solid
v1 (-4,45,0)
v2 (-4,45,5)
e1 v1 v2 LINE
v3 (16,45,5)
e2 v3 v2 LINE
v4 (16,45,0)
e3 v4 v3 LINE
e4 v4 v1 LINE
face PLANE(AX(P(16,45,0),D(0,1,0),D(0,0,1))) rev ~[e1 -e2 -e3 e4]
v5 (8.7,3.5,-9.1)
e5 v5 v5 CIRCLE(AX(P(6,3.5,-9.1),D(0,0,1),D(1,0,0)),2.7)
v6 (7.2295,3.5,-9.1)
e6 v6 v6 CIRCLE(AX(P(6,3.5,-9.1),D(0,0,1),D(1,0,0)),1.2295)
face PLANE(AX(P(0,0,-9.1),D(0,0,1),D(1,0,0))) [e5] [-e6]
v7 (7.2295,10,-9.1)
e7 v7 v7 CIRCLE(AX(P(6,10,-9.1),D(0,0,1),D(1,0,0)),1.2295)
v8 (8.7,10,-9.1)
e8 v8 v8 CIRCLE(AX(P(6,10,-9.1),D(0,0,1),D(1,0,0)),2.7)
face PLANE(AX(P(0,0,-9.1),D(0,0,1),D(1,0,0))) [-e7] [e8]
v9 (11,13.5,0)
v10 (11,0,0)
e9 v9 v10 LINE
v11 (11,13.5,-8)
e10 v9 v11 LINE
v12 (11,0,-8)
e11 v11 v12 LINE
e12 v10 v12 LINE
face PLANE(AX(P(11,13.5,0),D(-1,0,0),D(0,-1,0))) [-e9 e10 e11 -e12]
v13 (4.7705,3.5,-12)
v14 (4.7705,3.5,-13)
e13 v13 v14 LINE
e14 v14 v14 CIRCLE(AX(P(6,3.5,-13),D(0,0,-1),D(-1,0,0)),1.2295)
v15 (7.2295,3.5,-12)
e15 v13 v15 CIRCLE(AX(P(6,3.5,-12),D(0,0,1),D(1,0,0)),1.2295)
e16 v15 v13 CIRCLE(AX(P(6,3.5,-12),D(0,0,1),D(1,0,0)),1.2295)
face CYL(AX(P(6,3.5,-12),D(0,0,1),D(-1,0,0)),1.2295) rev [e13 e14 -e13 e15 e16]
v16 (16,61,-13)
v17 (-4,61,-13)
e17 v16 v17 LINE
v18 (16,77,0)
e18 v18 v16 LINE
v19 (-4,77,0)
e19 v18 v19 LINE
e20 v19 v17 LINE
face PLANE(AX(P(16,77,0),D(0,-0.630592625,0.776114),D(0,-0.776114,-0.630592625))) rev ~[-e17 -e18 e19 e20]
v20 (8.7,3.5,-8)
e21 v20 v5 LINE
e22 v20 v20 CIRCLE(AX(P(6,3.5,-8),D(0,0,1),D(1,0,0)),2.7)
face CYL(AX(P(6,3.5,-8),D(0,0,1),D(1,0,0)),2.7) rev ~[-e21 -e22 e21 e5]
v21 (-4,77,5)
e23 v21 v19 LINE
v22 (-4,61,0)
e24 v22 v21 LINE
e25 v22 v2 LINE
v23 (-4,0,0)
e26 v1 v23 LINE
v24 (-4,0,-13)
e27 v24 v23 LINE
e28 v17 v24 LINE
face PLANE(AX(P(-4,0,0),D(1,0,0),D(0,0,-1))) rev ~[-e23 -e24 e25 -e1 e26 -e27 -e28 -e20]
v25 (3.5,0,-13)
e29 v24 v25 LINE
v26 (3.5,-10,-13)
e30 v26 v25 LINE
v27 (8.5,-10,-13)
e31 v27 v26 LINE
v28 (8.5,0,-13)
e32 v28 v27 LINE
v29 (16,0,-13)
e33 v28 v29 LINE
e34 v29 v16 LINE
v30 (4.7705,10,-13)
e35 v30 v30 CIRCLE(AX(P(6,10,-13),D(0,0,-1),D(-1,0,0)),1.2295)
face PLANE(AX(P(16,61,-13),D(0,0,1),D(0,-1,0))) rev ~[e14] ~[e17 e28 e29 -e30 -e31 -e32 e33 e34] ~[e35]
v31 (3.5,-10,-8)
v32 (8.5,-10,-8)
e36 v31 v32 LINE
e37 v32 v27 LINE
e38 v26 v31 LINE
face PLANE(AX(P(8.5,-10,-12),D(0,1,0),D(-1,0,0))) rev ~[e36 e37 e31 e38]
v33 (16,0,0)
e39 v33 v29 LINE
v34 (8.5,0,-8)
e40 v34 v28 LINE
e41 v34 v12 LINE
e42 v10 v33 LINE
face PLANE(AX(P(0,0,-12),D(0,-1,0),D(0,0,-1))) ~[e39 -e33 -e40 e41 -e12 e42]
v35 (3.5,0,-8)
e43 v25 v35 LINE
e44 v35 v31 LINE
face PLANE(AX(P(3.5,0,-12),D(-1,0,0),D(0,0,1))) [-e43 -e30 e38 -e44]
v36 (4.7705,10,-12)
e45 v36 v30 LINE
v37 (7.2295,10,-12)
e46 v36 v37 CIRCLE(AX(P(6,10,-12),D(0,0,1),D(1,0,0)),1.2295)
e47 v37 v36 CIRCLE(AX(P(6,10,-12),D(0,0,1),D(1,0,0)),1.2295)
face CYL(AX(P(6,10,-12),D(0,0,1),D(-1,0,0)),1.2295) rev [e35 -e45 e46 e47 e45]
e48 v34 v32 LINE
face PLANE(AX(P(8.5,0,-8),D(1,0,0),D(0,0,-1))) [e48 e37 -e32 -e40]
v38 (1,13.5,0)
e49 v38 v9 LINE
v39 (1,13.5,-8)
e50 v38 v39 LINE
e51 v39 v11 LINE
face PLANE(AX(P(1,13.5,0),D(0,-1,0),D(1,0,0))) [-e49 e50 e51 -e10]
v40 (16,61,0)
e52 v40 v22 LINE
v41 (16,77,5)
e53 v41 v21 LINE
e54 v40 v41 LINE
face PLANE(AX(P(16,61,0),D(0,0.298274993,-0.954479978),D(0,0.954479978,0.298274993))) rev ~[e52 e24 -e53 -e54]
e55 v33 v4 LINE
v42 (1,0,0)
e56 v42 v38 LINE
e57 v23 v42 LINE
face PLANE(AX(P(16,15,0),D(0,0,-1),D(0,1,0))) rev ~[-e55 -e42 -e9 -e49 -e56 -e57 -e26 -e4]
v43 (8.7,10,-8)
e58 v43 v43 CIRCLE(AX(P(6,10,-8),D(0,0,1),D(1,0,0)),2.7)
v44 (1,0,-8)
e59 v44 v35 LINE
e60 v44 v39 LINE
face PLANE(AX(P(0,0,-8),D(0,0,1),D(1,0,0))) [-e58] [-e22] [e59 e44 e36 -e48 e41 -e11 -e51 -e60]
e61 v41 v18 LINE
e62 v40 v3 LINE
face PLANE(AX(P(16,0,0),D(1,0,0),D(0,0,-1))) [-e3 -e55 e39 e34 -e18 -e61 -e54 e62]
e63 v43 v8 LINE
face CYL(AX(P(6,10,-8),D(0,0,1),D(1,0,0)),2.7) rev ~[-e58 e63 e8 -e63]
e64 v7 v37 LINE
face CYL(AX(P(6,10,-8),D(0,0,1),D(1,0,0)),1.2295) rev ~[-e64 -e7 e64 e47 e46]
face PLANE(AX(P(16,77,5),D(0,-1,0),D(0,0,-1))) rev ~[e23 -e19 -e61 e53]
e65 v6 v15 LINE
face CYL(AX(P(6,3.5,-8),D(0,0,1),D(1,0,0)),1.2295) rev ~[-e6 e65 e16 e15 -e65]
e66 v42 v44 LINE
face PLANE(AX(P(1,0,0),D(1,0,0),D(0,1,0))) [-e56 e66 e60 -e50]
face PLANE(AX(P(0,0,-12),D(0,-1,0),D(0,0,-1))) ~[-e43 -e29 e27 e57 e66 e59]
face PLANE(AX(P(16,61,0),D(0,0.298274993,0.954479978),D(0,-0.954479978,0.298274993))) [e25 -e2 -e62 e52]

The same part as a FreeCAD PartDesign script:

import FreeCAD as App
import Part
import Sketcher


def add_polygon(sketch, points):
    """Adds a closed chain of lines whose ends are joined by coincident constraints."""
    first, n = sketch.GeometryCount, len(points)
    for a, b in zip(points, points[1:] + points[:1]):
        sketch.addGeometry(Part.LineSegment(App.Vector(*a, 0), App.Vector(*b, 0)), False)
    for i in range(n):
        sketch.addConstraint(Sketcher.Constraint("Coincident", first + i, 2, first + (i + 1) % n, 1))

doc = App.newDocument("Part")
body = doc.addObject("PartDesign::Body", "Body")

# Sketch on YZ plane
sketch1 = body.newObject("Sketcher::SketchObject", "Sketch")
sketch1.AttachmentSupport = (doc.getObject("YZ_Plane"), [""])
sketch1.MapMode = "FlatFace"
add_polygon(sketch1, [(15, 0), (0, 0), (0, -10), (15, -10)])  # lines 0-3
sketch1.addConstraint([
    Sketcher.Constraint("Horizontal", 0),
    Sketcher.Constraint("Vertical", 1),
    Sketcher.Constraint("Horizontal", 2),
    Sketcher.Constraint("Vertical", 3),
    Sketcher.Constraint("Coincident", 0, 2, -1, 1),
    Sketcher.Constraint("DistanceX", 0, 2, 0, 1, 15.0),
    Sketcher.Constraint("DistanceY", 1, 2, 1, 1, 10.0),
])
pad1 = body.newObject("PartDesign::Pad", "Pad")
pad1.Profile = sketch1
pad1.Length = 12

# Sketch on XY plane
sketch2 = body.newObject("Sketcher::SketchObject", "Sketch001")
sketch2.AttachmentSupport = (doc.getObject("XY_Plane"), [""])
sketch2.MapMode = "FlatFace"
add_polygon(sketch2, [(1, 14), (1, 0), (11, 0), (11, 14)])  # lines 0-3
sketch2.addConstraint([
    Sketcher.Constraint("Vertical", 0),
    Sketcher.Constraint("Horizontal", 1),
    Sketcher.Constraint("Vertical", 2),
    Sketcher.Constraint("Horizontal", 3),
    Sketcher.Constraint("PointOnObject", 0, 2, -1),
    Sketcher.Constraint("DistanceX", 1, 1, 1, 2, 10.0),
    Sketcher.Constraint("DistanceY", 0, 2, 0, 1, 13.5),
    Sketcher.Constraint("DistanceX", -1, 1, 0, 2, 1.0),
])
pocket1 = body.newObject("PartDesign::Pocket", "Pocket")
pocket1.Profile = sketch2
pocket1.Length = 8

# Sketch on XY plane
sketch3 = body.newObject("Sketcher::SketchObject", "Sketch002")
sketch3.AttachmentSupport = (doc.getObject("XY_Plane"), [""])
sketch3.MapMode = "FlatFace"
sketch3.AttachmentOffset = App.Placement(App.Vector(0, 0, -10), App.Rotation())
add_polygon(sketch3, [(0, 0), (0, 15), (12, 15), (12, 0)])  # lines 0-3
sketch3.addConstraint([
    Sketcher.Constraint("Vertical", 0),
    Sketcher.Constraint("Horizontal", 1),
    Sketcher.Constraint("Vertical", 2),
    Sketcher.Constraint("Horizontal", 3),
    Sketcher.Constraint("Coincident", 3, 2, -1, 1),
    Sketcher.Constraint("DistanceX", 1, 1, 1, 2, 12.0),
    Sketcher.Constraint("DistanceY", 0, 1, 0, 2, 15.0),
])
pad2 = body.newObject("PartDesign::Pad", "Pad001")
pad2.Profile = sketch3
pad2.Length = 2
pad2.Reversed = True

# Sketch on XY plane
sketch4 = body.newObject("Sketcher::SketchObject", "Sketch003")
sketch4.AttachmentSupport = (doc.getObject("XY_Plane"), [""])
sketch4.MapMode = "FlatFace"
sketch4.AttachmentOffset = App.Placement(App.Vector(0, 0, -8), App.Rotation())
sketch4.addGeometry([
    Part.Circle(App.Vector(6, 10, 0), App.Vector(0, 0, 1), 1.2),
    Part.Circle(App.Vector(6, 3.5, 0), App.Vector(0, 0, 1), 1.2),
], False)
sketch4.addConstraint([
    Sketcher.Constraint("Equal", 0, 1),
    Sketcher.Constraint("Vertical", 0, 3, 1, 3),
    Sketcher.Constraint("Diameter", 0, 2.459),
    Sketcher.Constraint("DistanceY", -1, 1, 1, 3, 3.5),
    Sketcher.Constraint("DistanceY", 1, 3, 0, 3, 6.5),
    Sketcher.Constraint("DistanceX", -1, 1, 0, 3, 6.0),
])
pocket2 = body.newObject("PartDesign::Pocket", "Pocket001")
pocket2.Profile = sketch4
pocket2.Length = 4

# Sketch on XY plane
sketch5 = body.newObject("Sketcher::SketchObject", "Sketch004")
sketch5.AttachmentSupport = (doc.getObject("XY_Plane"), [""])
sketch5.MapMode = "FlatFace"
sketch5.AttachmentOffset = App.Placement(App.Vector(0, 0, -8), App.Rotation())
sketch5.addGeometry([
    Part.Circle(App.Vector(6, 10, 0), App.Vector(0, 0, 1), 2.7),
    Part.Circle(App.Vector(6, 10, 0), App.Vector(0, 0, 1), 1.2),
    Part.Circle(App.Vector(6, 3.5, 0), App.Vector(0, 0, 1), 2.7),
    Part.Circle(App.Vector(6, 3.5, 0), App.Vector(0, 0, 1), 1.2),
], False)
sketch5.addConstraint([
    Sketcher.Constraint("Coincident", 1, 3, 0, 3),
    Sketcher.Constraint("Coincident", 3, 3, 2, 3),
    Sketcher.Constraint("Equal", 0, 2),
    Sketcher.Constraint("Equal", 1, 3),
    Sketcher.Constraint("Vertical", 1, 3, 2, 3),
    Sketcher.Constraint("Diameter", 0, 5.4),
    Sketcher.Constraint("Diameter", 1, 2.459),
    Sketcher.Constraint("DistanceX", -1, 1, 0, 3, 6.0),
    Sketcher.Constraint("DistanceY", -1, 1, 0, 3, 10.0),
    Sketcher.Constraint("DistanceY", -1, 1, 2, 3, 3.5),
])
pocket3 = body.newObject("PartDesign::Pocket", "Pocket002")
pocket3.Profile = sketch5
pocket3.Length = 1.1

# Sketch on YZ plane
sketch6 = body.newObject("Sketcher::SketchObject", "Sketch005")
sketch6.AttachmentSupport = (doc.getObject("YZ_Plane"), [""])
sketch6.MapMode = "FlatFace"
sketch6.AttachmentOffset = App.Placement(App.Vector(0, 0, 12), App.Rotation())
add_polygon(sketch6, [(15, -12), (15, 0), (0, 0), (0, -12)])  # lines 0-3
sketch6.addConstraint([
    Sketcher.Constraint("Vertical", 0),
    Sketcher.Constraint("Horizontal", 1),
    Sketcher.Constraint("Vertical", 2),
    Sketcher.Constraint("Horizontal", 3),
    Sketcher.Constraint("Coincident", 1, 2, -1, 1),
    Sketcher.Constraint("DistanceX", 1, 2, 1, 1, 15.0),
    Sketcher.Constraint("DistanceY", 0, 1, 0, 2, 12.0),
])
pad3 = body.newObject("PartDesign::Pad", "Pad002")
pad3.Profile = sketch6
pad3.Length = 4
doc.recompute()

datumplane = body.newObject("PartDesign::Plane", "DatumPlane")
datumplane.AttachmentSupport = (doc.getObject("YZ_Plane"), [""])
datumplane.MapMode = "FlatFace"
datumplane.AttachmentOffset = App.Placement(App.Vector(0, 0, 6), App.Rotation())
mirrored = body.newObject("PartDesign::Mirrored", "Mirrored")
mirrored.Originals = [pad3]
mirrored.MirrorPlane = (datumplane, [""])
body.Tip = mirrored

# Sketch on XZ plane
sketch7 = body.newObject("Sketcher::SketchObject", "Sketch006")
sketch7.AttachmentSupport = (doc.getObject("XZ_Plane"), [""])
sketch7.MapMode = "FlatFace"
add_polygon(sketch7, [(8.5, -12), (8.5, -8), (3.5, -8), (3.5, -12)])  # lines 0-3
sketch7.addConstraint([
    Sketcher.Constraint("Vertical", 0),
    Sketcher.Constraint("Horizontal", 1),
    Sketcher.Constraint("Vertical", 2),
    Sketcher.Constraint("Horizontal", 3),
    Sketcher.Constraint("DistanceX", 1, 2, 1, 1, 5.0),
    Sketcher.Constraint("DistanceY", 0, 1, 0, 2, 4.0),
    Sketcher.Constraint("DistanceY", 0, 2, -1, 1, 8.0),
    Sketcher.Constraint("DistanceX", -1, 1, 0, 2, 8.5),
])
pad4 = body.newObject("PartDesign::Pad", "Pad003")
pad4.Profile = sketch7
pad4.Length = 10

# Sketch on XY plane
sketch8 = body.newObject("Sketcher::SketchObject", "Sketch007")
sketch8.AttachmentSupport = (doc.getObject("XY_Plane"), [""])
sketch8.MapMode = "FlatFace"
sketch8.AttachmentOffset = App.Placement(App.Vector(0, 0, -12), App.Rotation())
add_polygon(sketch8, [(-4, 15), (16, 15), (16, 0), (8.5, 0), (8.5, -10), (3.5, -10), (3.5, 0), (-4, 0)])  # lines 0-7
sketch8.addGeometry(Part.Circle(App.Vector(6, 3.5, 0), App.Vector(0, 0, 1), 1.2), False)  # 8
sketch8.addGeometry(Part.Circle(App.Vector(6, 10, 0), App.Vector(0, 0, 1), 1.2), False)  # 9
sketch8.addConstraint([
    Sketcher.Constraint("Horizontal", 0),
    Sketcher.Constraint("Vertical", 1),
    Sketcher.Constraint("Horizontal", 2),
    Sketcher.Constraint("Vertical", 3),
    Sketcher.Constraint("Horizontal", 4),
    Sketcher.Constraint("Vertical", 5),
    Sketcher.Constraint("Horizontal", 6),
    Sketcher.Constraint("Vertical", 7),
    Sketcher.Constraint("Equal", 8, 9),
    Sketcher.Constraint("PointOnObject", 1, 2, -1),
    Sketcher.Constraint("PointOnObject", 5, 2, -1),
    Sketcher.Constraint("Vertical", 8, 3, 9, 3),
    Sketcher.Constraint("Equal", 2, 6),
    Sketcher.Constraint("DistanceX", 0, 1, 0, 2, 20.0),
    Sketcher.Constraint("DistanceX", 4, 2, 4, 1, 5.0),
    Sketcher.Constraint("DistanceY", 1, 2, 1, 1, 15.0),
    Sketcher.Constraint("DistanceY", 3, 2, 3, 1, 10.0),
    Sketcher.Constraint("Diameter", 8, 2.459),
    Sketcher.Constraint("DistanceX", -1, 1, 8, 3, 6.0),
    Sketcher.Constraint("DistanceY", -1, 1, 9, 3, 10.0),
    Sketcher.Constraint("DistanceX", -1, 1, 0, 2, 16.0),
    Sketcher.Constraint("DistanceY", -1, 1, 8, 3, 3.5),
])
pad5 = body.newObject("PartDesign::Pad", "Pad004")
pad5.Profile = sketch8
pad5.Length = 1
pad5.Reversed = True

# Sketch on YZ plane
sketch9 = body.newObject("Sketcher::SketchObject", "Sketch008")
sketch9.AttachmentSupport = (doc.getObject("YZ_Plane"), [""])
sketch9.MapMode = "FlatFace"
sketch9.AttachmentOffset = App.Placement(App.Vector(0, 0, 16), App.Rotation())
add_polygon(sketch9, [(45, 0), (15, 0), (15, -13), (61, -13), (77, 0), (77, 5), (61, 0), (45, 5)])  # lines 0-7
sketch9.addConstraint([
    Sketcher.Constraint("Horizontal", 0),
    Sketcher.Constraint("Vertical", 1),
    Sketcher.Constraint("Horizontal", 2),
    Sketcher.Constraint("Vertical", 4),
    Sketcher.Constraint("Vertical", 7),
    Sketcher.Constraint("PointOnObject", 0, 2, -1),
    Sketcher.Constraint("PointOnObject", 3, 2, -1),
    Sketcher.Constraint("PointOnObject", 5, 2, -1),
    Sketcher.Constraint("Horizontal", 4, 2, 6, 2),
    Sketcher.Constraint("Vertical", 2, 2, 5, 2),
    Sketcher.Constraint("Equal", 5, 6),
    Sketcher.Constraint("DistanceX", 0, 2, 0, 1, 30.0),
    Sketcher.Constraint("DistanceX", 2, 1, 2, 2, 46.0),
    Sketcher.Constraint("DistanceY", 1, 2, 1, 1, 13.0),
    Sketcher.Constraint("DistanceY", 4, 1, 4, 2, 5.0),
    Sketcher.Constraint("DistanceX", -1, 1, 0, 2, 15.0),
])
pad6 = body.newObject("PartDesign::Pad", "Pad005")
pad6.Profile = sketch9
pad6.Length = 20
pad6.Reversed = True

doc.recompute()
